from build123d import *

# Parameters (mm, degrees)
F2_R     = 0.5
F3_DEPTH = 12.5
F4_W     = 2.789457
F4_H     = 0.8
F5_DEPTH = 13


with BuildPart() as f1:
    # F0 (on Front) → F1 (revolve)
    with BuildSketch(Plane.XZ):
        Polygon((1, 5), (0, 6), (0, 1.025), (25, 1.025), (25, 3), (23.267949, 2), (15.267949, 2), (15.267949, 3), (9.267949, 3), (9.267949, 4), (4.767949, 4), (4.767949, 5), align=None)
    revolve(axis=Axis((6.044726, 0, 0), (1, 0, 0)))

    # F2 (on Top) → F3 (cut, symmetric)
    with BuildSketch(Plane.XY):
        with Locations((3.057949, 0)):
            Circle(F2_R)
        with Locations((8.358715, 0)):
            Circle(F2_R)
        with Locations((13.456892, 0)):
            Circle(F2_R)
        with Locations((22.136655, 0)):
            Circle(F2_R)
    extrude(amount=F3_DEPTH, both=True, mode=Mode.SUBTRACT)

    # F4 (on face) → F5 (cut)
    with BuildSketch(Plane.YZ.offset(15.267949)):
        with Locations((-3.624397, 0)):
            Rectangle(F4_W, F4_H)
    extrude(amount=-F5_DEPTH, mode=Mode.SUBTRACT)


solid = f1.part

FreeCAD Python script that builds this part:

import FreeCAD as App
import Part
import Sketcher
from FreeCAD import Vector
Q = App.Units.Quantity


def add_polygon(sketch, points):
    """Adds a closed chain of lines whose ends are joined by coincident constraints."""
    first, n = sketch.GeometryCount, len(points)
    for a, b in zip(points, points[1:] + points[:1]):
        sketch.addGeometry(Part.LineSegment(App.Vector(*a, 0), App.Vector(*b, 0)), False)
    for i in range(n):
        sketch.addConstraint(Sketcher.Constraint("Coincident", first + i, 2, first + (i + 1) % n, 1))

doc = App.newDocument("Part")
body = doc.addObject("PartDesign::Body", "Body")

# Sketch on XZ plane
sketch1 = doc.addObject("Sketcher::SketchObject", "Sketch")
body.addObject(sketch1)
sketch1.AttachmentSupport = (doc.XZ_Plane, [""])
sketch1.MapMode = "FlatFace"
add_polygon(sketch1, [(1, 5), (0, 6), (0, 1.025), (25, 1.025), (25, 3), (23.267949, 2), (15.267949, 2), (15.267949, 3), (9.267949, 3), (9.267949, 4), (4.767949, 4), (4.767949, 5)])  # lines 0-11
sketch1.addConstraint([
    Sketcher.Constraint("Vertical", 1),
    Sketcher.Constraint("Horizontal", 2),
    Sketcher.Constraint("Vertical", 3),
    Sketcher.Constraint("Horizontal", 5),
    Sketcher.Constraint("Vertical", 6),
    Sketcher.Constraint("Horizontal", 7),
    Sketcher.Constraint("Vertical", 8),
    Sketcher.Constraint("Horizontal", 9),
    Sketcher.Constraint("Vertical", 10),
    Sketcher.Constraint("Horizontal", 11),
    Sketcher.Constraint("PointOnObject", 0, 2, -2),
    Sketcher.Constraint("Horizontal", 3, 2, 6, 2),
    Sketcher.Constraint("Equal", 6, 8),
    Sketcher.Constraint("Equal", 8, 10),
    Sketcher.Constraint("DistanceX", 2, 1, 2, 2, 25.0),
    Sketcher.Constraint("DistanceX", 5, 2, 5, 1, 8.0),
    Sketcher.Constraint("DistanceX", 7, 2, 7, 1, 6.0),
    Sketcher.Constraint("DistanceY", 6, 1, 6, 2, 1.0),
    Sketcher.Constraint("Angle", 0, Q("135 deg")),
    Sketcher.Constraint("Angle", 4, Q("-150.000003 deg")),
    Sketcher.Constraint("DistanceX", 9, 2, 9, 1, 4.5),
    Sketcher.Constraint("DistanceY", -1, 1, 0, 2, 6.0),
    Sketcher.Constraint("DistanceY", -1, 1, 3, 2, 3.0),
    Sketcher.Constraint("DistanceY", 1, 2, 1, 1, 4.975),
])
revolution = doc.addObject("PartDesign::Revolution", "Revolution")
body.addObject(revolution)
revolution.Profile = sketch1
revolution.ReferenceAxis = (sketch1, ["H_Axis"])
revolution.Angle = 360

# Sketch on XY plane
sketch2 = doc.addObject("Sketcher::SketchObject", "Sketch001")
body.addObject(sketch2)
sketch2.AttachmentSupport = (doc.XY_Plane, [""])
sketch2.MapMode = "FlatFace"
sketch2.addGeometry([
    Part.Circle(Vector(3.057949, 0, 0), Vector(0, 0, 1), 0.5),
    Part.Circle(Vector(8.358715, 0, 0), Vector(0, 0, 1), 0.5),
    Part.Circle(Vector(13.456892, 0, 0), Vector(0, 0, 1), 0.5),
    Part.Circle(Vector(22.136655, 0, 0), Vector(0, 0, 1), 0.5),
], False)
sketch2.addConstraint([
    Sketcher.Constraint("Equal", 0, 1),
    Sketcher.Constraint("Equal", 1, 2),
    Sketcher.Constraint("Equal", 2, 3),
    Sketcher.Constraint("PointOnObject", 0, 3, -1),
    Sketcher.Constraint("PointOnObject", 1, 3, -1),
    Sketcher.Constraint("PointOnObject", 2, 3, -1),
    Sketcher.Constraint("PointOnObject", 3, 3, -1),
    Sketcher.Constraint("Diameter", 0, 1.0),
    Sketcher.Constraint("DistanceX", -1, 1, 0, 3, 3.057949),
    Sketcher.Constraint("DistanceX", 1, 3, 3, 3, 13.77794),
    Sketcher.Constraint("DistanceX", -1, 1, 1, 3, 8.358715),
    Sketcher.Constraint("DistanceX", -1, 1, 2, 3, 13.456892),
])
pocket1 = doc.addObject("PartDesign::Pocket", "Pocket")
body.addObject(pocket1)
pocket1.Profile = sketch2
pocket1.Length = 25
pocket1.Midplane = True

# Sketch on YZ plane
sketch3 = doc.addObject("Sketcher::SketchObject", "Sketch002")
body.addObject(sketch3)
sketch3.AttachmentSupport = (doc.YZ_Plane, [""])
sketch3.MapMode = "FlatFace"
sketch3.AttachmentOffset = App.Placement(Vector(0, 0, 15.267949), App.Rotation())
add_polygon(sketch3, [(-5.019126, 0.4), (-5.019126, -0.4), (-2.229668, -0.4), (-2.229668, 0.4)])  # lines 0-3
sketch3.addConstraint([
    Sketcher.Constraint("Vertical", 0),
    Sketcher.Constraint("Horizontal", 1),
    Sketcher.Constraint("Vertical", 2),
    Sketcher.Constraint("Horizontal", 3),
    Sketcher.Constraint("DistanceY", 0, 2, 0, 1, 0.8),
    Sketcher.Constraint("DistanceY", 0, 2, -1, 1, 0.4),
    Sketcher.Constraint("DistanceX", 1, 1, 1, 2, 2.789457),
    Sketcher.Constraint("DistanceX", 1, 2, -1, 1, 2.229668),
])
pocket2 = doc.addObject("PartDesign::Pocket", "Pocket001")
body.addObject(pocket2)
pocket2.Profile = sketch3
pocket2.Length = 13

doc.recompute()
